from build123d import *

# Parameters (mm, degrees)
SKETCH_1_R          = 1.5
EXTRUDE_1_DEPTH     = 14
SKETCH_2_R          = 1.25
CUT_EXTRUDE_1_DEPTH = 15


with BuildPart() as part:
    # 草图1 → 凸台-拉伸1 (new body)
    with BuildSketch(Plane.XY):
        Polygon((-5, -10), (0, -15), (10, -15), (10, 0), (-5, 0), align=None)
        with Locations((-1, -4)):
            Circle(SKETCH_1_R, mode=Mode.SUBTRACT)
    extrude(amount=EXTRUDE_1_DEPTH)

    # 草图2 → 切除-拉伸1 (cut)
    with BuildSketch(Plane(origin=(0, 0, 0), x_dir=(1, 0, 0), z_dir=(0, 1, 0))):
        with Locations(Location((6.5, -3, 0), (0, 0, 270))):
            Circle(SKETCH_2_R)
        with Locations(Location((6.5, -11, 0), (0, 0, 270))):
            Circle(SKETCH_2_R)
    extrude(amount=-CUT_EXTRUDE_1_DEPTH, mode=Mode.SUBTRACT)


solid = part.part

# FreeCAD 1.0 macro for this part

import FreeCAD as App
import Part
import Sketcher
from FreeCAD import Vector
Q = App.Units.Quantity


def add_polygon(sketch, points):
    """Adds a closed chain of lines whose ends are joined by coincident constraints."""
    first, n = sketch.GeometryCount, len(points)
    for a, b in zip(points, points[1:] + points[:1]):
        sketch.addGeometry(Part.LineSegment(App.Vector(*a, 0), App.Vector(*b, 0)), False)
    for i in range(n):
        sketch.addConstraint(Sketcher.Constraint("Coincident", first + i, 2, first + (i + 1) % n, 1))

doc = App.newDocument("Part")
params = doc.addObject("Spreadsheet::Sheet", "Params")
for row, (alias, value) in enumerate([
    ("sketch1_diameter", "3 mm"),
    ("sketch1_width", "10 mm"),
    ("sketch1_width2", "15 mm"),
    ("pad1_length", "14 mm"),
    ("sketch2_diameter", "2.5 mm"),
    ("pocket1_length", "15 mm"),
], start=1):
    params.set(f"A{row}", alias)
    params.set(f"B{row}", "=" + value)
    params.setAlias(f"B{row}", alias)

body = doc.addObject("PartDesign::Body", "Body")

sketch1 = body.newObject("Sketcher::SketchObject", "Sketch")
sketch1.AttachmentSupport = (doc.getObject("XY_Plane"), [""])
sketch1.MapMode = "FlatFace"
add_polygon(sketch1, [(-5, -10), (0, -15), (10, -15), (10, 0), (-5, 0)])
sketch1.addGeometry(Part.Circle(Vector(-1, -4, 0), Vector(0, 0, 1), 1.5), False)
sketch1.addConstraint([
    Sketcher.Constraint("Horizontal", 1),
    Sketcher.Constraint("Vertical", 2),
    Sketcher.Constraint("Horizontal", 3),
    Sketcher.Constraint("Vertical", 4),
    Sketcher.Constraint("PointOnObject", 0, 2, -2),
    Sketcher.Constraint("PointOnObject", 2, 2, -1),
    Sketcher.Constraint("Equal", 3, 2),
    Sketcher.Constraint("Equal", 1, 4),
    Sketcher.Constraint("Diameter", 5, Q("3 mm")),
    Sketcher.Constraint("DistanceX", 1, 1, 1, 2, Q("10 mm")),
    Sketcher.Constraint("DistanceX", 3, 2, 3, 1, Q("15 mm")),
    Sketcher.Constraint("DistanceX", 5, 3, -1, 1, Q("1 mm")),
    Sketcher.Constraint("DistanceY", 5, 3, -1, 1, Q("4 mm")),
])
sketch1.setExpression("Constraints[13]", "Params.sketch1_diameter")
sketch1.setExpression("Constraints[14]", "Params.sketch1_width")
sketch1.setExpression("Constraints[15]", "Params.sketch1_width2")
pad1 = body.newObject("PartDesign::Pad", "Pad")
pad1.Profile = sketch1
pad1.setExpression("Length", "Params.pad1_length")

sketch2 = body.newObject("Sketcher::SketchObject", "Sketch001")
sketch2.AttachmentSupport = (doc.getObject("XZ_Plane"), [""])
sketch2.MapMode = "FlatFace"
sketch2.addGeometry([
    Part.Circle(Vector(6.5, 3, 0), Vector(0, 0, 1), 1.2),
    Part.Circle(Vector(6.5, 11, 0), Vector(0, 0, 1), 1.2),
], False)
sketch2.addConstraint([
    Sketcher.Constraint("Equal", 0, 1),
    Sketcher.Constraint("Vertical", 0, 3, 1, 3),
    Sketcher.Constraint("Diameter", 0, Q("2.5 mm")),
    Sketcher.Constraint("DistanceY", -1, 1, 0, 3, Q("3 mm")),
    Sketcher.Constraint("DistanceY", -1, 1, 1, 3, Q("11 mm")),
    Sketcher.Constraint("DistanceX", -1, 1, 0, 3, Q("6.5 mm")),
])
sketch2.setExpression("Constraints[2]", "Params.sketch2_diameter")
pocket1 = body.newObject("PartDesign::Pocket", "Pocket")
pocket1.Profile = sketch2
pocket1.setExpression("Length", "Params.pocket1_length")
pocket1.Reversed = True

doc.recompute()
